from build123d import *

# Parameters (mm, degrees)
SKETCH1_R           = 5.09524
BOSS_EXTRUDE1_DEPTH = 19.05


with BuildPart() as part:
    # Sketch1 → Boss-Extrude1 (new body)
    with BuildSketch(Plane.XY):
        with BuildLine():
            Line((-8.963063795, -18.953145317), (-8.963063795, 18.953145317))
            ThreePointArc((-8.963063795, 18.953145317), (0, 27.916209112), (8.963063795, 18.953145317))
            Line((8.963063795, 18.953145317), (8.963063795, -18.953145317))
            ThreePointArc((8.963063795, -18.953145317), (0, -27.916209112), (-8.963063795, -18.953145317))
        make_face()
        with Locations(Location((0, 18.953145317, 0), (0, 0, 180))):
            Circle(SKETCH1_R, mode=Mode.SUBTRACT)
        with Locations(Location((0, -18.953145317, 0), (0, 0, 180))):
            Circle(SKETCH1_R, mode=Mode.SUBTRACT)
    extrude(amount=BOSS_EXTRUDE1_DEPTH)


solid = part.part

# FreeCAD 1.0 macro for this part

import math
import FreeCAD as App
import Part
import Sketcher

V = App.Vector
Q = App.Units.Quantity

doc = App.newDocument("Part")
body = doc.addObject("PartDesign::Body", "Body")

sketch1 = body.newObject("Sketcher::SketchObject", "Sketch")
sketch1.AttachmentSupport = (doc.getObject("XY_Plane"), [""])
sketch1.MapMode = "FlatFace"
sketch1.addGeometry(Part.LineSegment(V(-9, 19, 0), V(-9, -19, 0)), False)
sketch1.addGeometry(Part.ArcOfCircle(Part.Circle(V(0, -19, 0), V(0, 0, 1), 9), math.radians(180), math.radians(360)), False)
sketch1.addGeometry(Part.LineSegment(V(9, -19, 0), V(9, 19, 0)), False)
sketch1.addGeometry(Part.ArcOfCircle(Part.Circle(V(0, 19, 0), V(0, 0, 1), 9), math.radians(0), math.radians(180)), False)
sketch1.addGeometry(Part.Circle(V(0, -19, 0), V(0, 0, 1), 5), False)
sketch1.addGeometry(Part.Circle(V(0, 19, 0), V(0, 0, 1), 5), False)
sketch1.addConstraint(Sketcher.Constraint("Tangent", 0, 2, 1, 1))
sketch1.addConstraint(Sketcher.Constraint("Tangent", 1, 2, 2, 1))
sketch1.addConstraint(Sketcher.Constraint("Tangent", 2, 2, 3, 1))
sketch1.addConstraint(Sketcher.Constraint("Tangent", 3, 2, 0, 1))
sketch1.addConstraint(Sketcher.Constraint("Vertical", 0))
sketch1.addConstraint(Sketcher.Constraint("Vertical", 2))
sketch1.addConstraint(Sketcher.Constraint("Coincident", 4, 3, 1, 3))
sketch1.addConstraint(Sketcher.Constraint("Coincident", 5, 3, 3, 3))
sketch1.addConstraint(Sketcher.Constraint("Equal", 4, 5))
sketch1.addConstraint(Sketcher.Constraint("Symmetric", 1, 3, 3, 3, -1, 1))
sketch1.addConstraint(Sketcher.Constraint("Diameter", 4, Q("0.4012 in")))
sketch1.addConstraint(Sketcher.Constraint("Radius", 1, Q("8.963064 mm")))
sketch1.addConstraint(Sketcher.Constraint("DistanceY", 0, 2, 0, 1, Q("37.906291 mm")))
pad1 = body.newObject("PartDesign::Pad", "Pad")
pad1.Profile = sketch1
pad1.Length = Q("0.75 in")

doc.recompute()
